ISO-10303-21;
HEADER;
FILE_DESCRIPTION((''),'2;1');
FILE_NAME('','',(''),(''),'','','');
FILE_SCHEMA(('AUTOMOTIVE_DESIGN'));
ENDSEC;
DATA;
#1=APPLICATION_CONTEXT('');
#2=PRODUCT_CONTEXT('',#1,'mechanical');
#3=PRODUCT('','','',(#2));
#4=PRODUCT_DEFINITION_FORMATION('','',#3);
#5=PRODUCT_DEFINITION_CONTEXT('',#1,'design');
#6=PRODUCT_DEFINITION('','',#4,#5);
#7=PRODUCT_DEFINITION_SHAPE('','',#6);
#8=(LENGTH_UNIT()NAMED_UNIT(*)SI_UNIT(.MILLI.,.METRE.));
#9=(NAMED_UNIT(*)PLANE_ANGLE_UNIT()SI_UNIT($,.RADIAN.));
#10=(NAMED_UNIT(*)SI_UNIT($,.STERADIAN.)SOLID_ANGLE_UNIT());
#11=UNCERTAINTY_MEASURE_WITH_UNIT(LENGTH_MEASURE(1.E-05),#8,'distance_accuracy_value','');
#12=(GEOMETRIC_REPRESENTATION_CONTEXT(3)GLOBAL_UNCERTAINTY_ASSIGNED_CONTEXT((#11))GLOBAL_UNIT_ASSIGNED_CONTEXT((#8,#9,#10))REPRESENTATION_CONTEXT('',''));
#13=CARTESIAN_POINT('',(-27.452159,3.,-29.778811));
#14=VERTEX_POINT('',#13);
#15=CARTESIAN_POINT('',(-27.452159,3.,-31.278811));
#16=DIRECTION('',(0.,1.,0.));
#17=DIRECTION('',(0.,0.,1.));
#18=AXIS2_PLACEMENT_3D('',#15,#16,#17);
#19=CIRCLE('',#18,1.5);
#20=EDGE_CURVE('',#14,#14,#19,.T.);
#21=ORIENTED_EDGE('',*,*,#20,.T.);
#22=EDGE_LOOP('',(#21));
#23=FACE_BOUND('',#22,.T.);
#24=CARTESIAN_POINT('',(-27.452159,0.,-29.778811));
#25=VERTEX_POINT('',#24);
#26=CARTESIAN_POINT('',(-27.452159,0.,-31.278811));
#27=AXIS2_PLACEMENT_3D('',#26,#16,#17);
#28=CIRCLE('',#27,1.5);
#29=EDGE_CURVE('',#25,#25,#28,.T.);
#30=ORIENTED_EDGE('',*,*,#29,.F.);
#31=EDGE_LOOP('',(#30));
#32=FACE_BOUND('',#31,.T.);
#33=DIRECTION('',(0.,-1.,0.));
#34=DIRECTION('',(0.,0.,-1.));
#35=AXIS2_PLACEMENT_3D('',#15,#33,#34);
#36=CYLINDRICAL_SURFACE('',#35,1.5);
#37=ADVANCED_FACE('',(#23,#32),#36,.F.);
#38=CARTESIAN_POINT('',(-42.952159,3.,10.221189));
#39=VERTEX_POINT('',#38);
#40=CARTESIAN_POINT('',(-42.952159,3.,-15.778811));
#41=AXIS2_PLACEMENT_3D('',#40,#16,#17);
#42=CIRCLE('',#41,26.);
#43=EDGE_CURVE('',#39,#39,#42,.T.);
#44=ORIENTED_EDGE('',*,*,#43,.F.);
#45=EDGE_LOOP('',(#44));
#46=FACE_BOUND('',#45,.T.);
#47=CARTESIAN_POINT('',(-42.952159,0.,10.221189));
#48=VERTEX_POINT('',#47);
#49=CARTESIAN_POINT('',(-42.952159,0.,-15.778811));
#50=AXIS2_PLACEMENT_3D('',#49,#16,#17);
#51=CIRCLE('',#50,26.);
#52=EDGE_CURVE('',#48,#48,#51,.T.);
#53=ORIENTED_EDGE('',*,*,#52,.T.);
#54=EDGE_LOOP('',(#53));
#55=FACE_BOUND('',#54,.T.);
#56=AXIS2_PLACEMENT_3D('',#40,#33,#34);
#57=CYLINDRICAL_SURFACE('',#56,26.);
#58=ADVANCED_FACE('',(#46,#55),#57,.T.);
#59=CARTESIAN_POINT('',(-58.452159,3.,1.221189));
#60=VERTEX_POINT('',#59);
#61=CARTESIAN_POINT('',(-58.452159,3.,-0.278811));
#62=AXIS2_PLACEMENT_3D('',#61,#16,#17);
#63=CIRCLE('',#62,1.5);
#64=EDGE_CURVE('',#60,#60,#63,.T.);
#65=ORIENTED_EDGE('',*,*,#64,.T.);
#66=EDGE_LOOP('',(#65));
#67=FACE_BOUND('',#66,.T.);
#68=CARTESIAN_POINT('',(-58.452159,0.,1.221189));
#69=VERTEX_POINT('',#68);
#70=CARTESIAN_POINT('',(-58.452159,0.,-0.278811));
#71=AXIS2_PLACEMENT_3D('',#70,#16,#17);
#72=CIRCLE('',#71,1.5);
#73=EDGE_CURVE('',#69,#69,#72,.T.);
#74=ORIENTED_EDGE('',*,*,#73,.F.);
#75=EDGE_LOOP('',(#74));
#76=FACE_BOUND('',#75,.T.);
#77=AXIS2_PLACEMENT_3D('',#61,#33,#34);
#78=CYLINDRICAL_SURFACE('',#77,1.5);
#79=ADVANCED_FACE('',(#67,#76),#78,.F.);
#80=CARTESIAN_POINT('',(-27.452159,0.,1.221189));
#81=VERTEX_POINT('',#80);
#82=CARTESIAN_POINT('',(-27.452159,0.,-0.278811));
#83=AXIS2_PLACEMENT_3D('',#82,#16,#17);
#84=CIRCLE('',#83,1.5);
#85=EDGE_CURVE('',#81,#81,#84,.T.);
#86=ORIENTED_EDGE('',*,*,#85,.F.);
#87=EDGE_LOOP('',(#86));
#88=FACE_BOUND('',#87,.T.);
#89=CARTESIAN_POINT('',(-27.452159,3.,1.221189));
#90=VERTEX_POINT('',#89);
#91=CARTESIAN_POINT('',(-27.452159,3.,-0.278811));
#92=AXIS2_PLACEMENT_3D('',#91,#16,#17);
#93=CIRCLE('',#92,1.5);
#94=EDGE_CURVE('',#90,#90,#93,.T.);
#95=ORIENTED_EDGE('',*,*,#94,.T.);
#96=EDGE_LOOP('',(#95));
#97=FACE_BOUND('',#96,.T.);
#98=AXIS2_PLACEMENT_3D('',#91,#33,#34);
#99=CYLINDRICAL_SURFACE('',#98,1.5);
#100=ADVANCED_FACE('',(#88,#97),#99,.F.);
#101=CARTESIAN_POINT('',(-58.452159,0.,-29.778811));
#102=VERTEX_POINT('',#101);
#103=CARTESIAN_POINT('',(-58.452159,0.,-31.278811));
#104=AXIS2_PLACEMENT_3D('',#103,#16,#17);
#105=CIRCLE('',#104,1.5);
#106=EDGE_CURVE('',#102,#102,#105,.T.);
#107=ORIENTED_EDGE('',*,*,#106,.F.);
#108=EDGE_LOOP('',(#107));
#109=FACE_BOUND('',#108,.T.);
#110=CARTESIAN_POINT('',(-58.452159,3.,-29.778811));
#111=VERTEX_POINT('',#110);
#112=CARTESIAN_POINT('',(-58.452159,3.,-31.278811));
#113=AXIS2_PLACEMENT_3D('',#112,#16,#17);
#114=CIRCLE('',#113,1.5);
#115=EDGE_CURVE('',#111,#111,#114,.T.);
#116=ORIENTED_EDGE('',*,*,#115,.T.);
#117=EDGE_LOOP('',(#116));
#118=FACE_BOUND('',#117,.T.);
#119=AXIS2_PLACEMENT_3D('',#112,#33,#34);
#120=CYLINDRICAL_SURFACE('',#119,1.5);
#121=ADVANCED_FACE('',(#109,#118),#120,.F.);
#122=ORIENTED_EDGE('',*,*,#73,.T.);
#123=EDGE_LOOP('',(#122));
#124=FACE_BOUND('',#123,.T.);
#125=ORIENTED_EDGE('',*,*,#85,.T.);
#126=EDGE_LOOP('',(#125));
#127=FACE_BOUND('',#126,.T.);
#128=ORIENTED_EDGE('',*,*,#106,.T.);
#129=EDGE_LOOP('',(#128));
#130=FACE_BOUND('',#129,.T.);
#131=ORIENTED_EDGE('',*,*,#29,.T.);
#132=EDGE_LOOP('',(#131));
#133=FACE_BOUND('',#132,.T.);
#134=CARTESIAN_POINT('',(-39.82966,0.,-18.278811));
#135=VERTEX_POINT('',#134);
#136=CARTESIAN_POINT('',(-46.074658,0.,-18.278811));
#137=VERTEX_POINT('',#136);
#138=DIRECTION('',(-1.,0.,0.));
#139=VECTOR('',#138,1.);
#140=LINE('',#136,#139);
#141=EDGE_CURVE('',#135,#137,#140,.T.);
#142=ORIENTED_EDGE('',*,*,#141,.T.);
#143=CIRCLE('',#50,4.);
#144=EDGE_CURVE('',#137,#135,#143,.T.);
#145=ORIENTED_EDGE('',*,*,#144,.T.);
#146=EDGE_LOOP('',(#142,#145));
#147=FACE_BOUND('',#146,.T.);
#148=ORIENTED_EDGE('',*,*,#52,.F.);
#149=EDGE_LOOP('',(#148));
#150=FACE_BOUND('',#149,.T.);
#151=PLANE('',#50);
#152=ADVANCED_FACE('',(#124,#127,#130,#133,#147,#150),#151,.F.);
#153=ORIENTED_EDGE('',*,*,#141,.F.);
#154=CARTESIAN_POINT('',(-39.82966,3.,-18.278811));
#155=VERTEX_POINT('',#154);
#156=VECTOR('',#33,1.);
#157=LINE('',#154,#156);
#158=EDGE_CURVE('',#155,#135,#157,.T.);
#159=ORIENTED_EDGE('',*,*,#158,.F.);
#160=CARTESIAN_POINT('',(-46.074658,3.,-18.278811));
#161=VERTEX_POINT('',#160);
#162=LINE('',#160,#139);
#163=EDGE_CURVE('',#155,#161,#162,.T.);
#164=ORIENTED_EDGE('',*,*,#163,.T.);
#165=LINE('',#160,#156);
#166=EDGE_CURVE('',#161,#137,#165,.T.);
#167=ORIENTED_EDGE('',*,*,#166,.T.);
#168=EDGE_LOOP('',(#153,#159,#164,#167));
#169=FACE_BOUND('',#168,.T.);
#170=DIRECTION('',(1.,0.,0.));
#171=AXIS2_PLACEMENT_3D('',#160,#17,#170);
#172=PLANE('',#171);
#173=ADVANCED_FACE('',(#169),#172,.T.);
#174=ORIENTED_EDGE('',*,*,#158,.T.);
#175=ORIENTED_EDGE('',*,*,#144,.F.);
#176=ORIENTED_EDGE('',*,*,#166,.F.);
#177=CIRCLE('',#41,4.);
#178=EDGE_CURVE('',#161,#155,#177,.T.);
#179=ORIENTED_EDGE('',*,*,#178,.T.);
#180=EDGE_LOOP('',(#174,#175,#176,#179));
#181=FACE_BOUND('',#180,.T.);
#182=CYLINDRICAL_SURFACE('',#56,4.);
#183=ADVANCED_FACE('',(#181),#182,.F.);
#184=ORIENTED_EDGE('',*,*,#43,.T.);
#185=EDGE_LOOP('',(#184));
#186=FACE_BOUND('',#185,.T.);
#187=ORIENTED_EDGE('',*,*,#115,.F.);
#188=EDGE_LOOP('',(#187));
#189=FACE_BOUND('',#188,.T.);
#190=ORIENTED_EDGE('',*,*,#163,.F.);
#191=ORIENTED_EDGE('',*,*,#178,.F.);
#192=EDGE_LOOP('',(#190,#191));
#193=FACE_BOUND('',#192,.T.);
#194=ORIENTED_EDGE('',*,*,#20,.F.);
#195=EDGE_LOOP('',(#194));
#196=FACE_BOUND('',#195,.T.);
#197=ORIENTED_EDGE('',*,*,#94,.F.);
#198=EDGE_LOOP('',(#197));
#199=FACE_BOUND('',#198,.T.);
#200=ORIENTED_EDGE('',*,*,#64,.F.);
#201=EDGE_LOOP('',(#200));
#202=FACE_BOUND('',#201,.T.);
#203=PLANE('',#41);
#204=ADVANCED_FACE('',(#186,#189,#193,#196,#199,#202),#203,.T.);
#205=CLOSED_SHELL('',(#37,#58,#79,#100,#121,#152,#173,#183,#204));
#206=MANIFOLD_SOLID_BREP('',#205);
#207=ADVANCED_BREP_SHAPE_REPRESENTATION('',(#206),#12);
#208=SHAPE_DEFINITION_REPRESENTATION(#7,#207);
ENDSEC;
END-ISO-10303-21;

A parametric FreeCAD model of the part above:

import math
import FreeCAD as App
import Part
import Sketcher
from FreeCAD import Vector

doc = App.newDocument("Part")
body = doc.addObject("PartDesign::Body", "Body")

# Sketch on XZ plane
sketch1 = body.newObject("Sketcher::SketchObject", "Sketch")
sketch1.AttachmentSupport = (doc.getObject("XZ_Plane"), [""])
sketch1.MapMode = "FlatFace"
sketch1.addGeometry(Part.Circle(Vector(-43, -15.8, 0), Vector(0, 0, 1), 26), False)
sketch1.addGeometry(Part.Circle(Vector(-58.5, -31.3, 0), Vector(0, 0, 1), 1.5), False)
sketch1.addGeometry(Part.Circle(Vector(-58.5, -0.3, 0), Vector(0, 0, 1), 1.5), False)
sketch1.addGeometry(Part.ArcOfCircle(Part.Circle(Vector(-43, -15.8, 0), Vector(0, 0, 1), 4), math.radians(-39), math.radians(219)), False)
sketch1.addGeometry(Part.LineSegment(Vector(-46.1, -18.3, 0), Vector(-39.8, -18.3, 0)), False)
sketch1.addGeometry(Part.Circle(Vector(-27.5, -31.3, 0), Vector(0, 0, 1), 1.5), False)
sketch1.addGeometry(Part.Circle(Vector(-27.5, -0.3, 0), Vector(0, 0, 1), 1.5), False)
sketch1.addConstraint(Sketcher.Constraint("Coincident", 3, 1, 4, 2))
sketch1.addConstraint(Sketcher.Constraint("Coincident", 4, 1, 3, 2))
sketch1.addConstraint(Sketcher.Constraint("Horizontal", 4))
sketch1.addConstraint(Sketcher.Constraint("Coincident", 3, 3, 0, 3))
sketch1.addConstraint(Sketcher.Constraint("Equal", 1, 2))
sketch1.addConstraint(Sketcher.Constraint("Equal", 2, 5))
sketch1.addConstraint(Sketcher.Constraint("Equal", 5, 6))
sketch1.addConstraint(Sketcher.Constraint("Horizontal", 1, 3, 5, 3))
sketch1.addConstraint(Sketcher.Constraint("Horizontal", 2, 3, 6, 3))
sketch1.addConstraint(Sketcher.Constraint("Vertical", 1, 3, 2, 3))
sketch1.addConstraint(Sketcher.Constraint("Vertical", 5, 3, 6, 3))
sketch1.addConstraint(Sketcher.Constraint("Diameter", 0, 52.0))
sketch1.addConstraint(Sketcher.Constraint("Diameter", 1, 3.0))
sketch1.addConstraint(Sketcher.Constraint("Radius", 3, 4.0))
sketch1.addConstraint(Sketcher.Constraint("DistanceY", 1, 3, 2, 3, 31.0))
sketch1.addConstraint(Sketcher.Constraint("DistanceX", 1, 3, 5, 3, 31.0))
sketch1.addConstraint(Sketcher.Constraint("DistanceY", 5, 3, 3, 1, 13.0))
sketch1.addConstraint(Sketcher.Constraint("DistanceX", 1, 3, 0, 3, 15.5))
sketch1.addConstraint(Sketcher.Constraint("DistanceY", 1, 3, 0, 3, 15.5))
sketch1.addConstraint(Sketcher.Constraint("DistanceX", 0, 3, -1, 1, 42.952159))
sketch1.addConstraint(Sketcher.Constraint("DistanceY", 0, 3, -1, 1, 15.778811))
pad1 = body.newObject("PartDesign::Pad", "Pad")
pad1.Profile = sketch1
pad1.Length = 3
pad1.Reversed = True

doc.recompute()
